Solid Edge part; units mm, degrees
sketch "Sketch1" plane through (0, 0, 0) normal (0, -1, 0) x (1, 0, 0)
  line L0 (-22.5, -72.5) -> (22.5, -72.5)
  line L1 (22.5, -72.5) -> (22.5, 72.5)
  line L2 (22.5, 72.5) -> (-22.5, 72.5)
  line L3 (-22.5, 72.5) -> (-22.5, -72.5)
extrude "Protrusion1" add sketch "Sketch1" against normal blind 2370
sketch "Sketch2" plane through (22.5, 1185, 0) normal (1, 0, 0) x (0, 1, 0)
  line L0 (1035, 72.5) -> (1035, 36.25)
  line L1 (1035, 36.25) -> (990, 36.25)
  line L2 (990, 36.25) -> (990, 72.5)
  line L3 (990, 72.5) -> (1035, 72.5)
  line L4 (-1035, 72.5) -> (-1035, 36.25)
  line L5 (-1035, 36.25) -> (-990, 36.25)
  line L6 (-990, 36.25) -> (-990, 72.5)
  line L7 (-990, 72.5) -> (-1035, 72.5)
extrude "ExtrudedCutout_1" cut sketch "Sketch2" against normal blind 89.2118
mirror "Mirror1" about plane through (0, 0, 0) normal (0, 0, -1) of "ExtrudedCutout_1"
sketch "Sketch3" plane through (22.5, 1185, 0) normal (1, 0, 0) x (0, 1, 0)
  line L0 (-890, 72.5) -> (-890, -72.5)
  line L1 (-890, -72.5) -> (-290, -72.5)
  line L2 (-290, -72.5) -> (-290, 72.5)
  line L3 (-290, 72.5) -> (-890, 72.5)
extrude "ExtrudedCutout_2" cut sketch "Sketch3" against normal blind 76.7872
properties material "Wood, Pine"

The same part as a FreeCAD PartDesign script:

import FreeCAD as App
import Part
import Sketcher

V = App.Vector
Q = App.Units.Quantity

doc = App.newDocument("Part")
body = doc.addObject("PartDesign::Body", "Body")
body.AllowCompound = True

sketch1 = body.newObject("Sketcher::SketchObject", "Sketch")
sketch1.AttachmentSupport = (doc.getObject("XZ_Plane"), [""])
sketch1.MapMode = "FlatFace"
sketch1.addGeometry([
    Part.LineSegment(V(-22.5, 72.5, 0), V(-22.5, -72.5, 0)),
    Part.LineSegment(V(-22.5, -72.5, 0), V(22.5, -72.5, 0)),
    Part.LineSegment(V(22.5, -72.5, 0), V(22.5, 72.5, 0)),
    Part.LineSegment(V(22.5, 72.5, 0), V(-22.5, 72.5, 0)),
], False)
sketch1.addConstraint([
    Sketcher.Constraint("Coincident", 0, 2, 1, 1),
    Sketcher.Constraint("Coincident", 1, 2, 2, 1),
    Sketcher.Constraint("Coincident", 2, 2, 3, 1),
    Sketcher.Constraint("Coincident", 3, 2, 0, 1),
    Sketcher.Constraint("Vertical", 0),
    Sketcher.Constraint("Horizontal", 1),
    Sketcher.Constraint("Vertical", 2),
    Sketcher.Constraint("Horizontal", 3),
    Sketcher.Constraint("Symmetric", 0, 2, 2, 2, -1, 1),
    Sketcher.Constraint("DistanceX", 1, 1, 1, 2, Q("45 mm")),
    Sketcher.Constraint("DistanceY", 0, 2, 0, 1, Q("145 mm")),
])
pad1 = body.newObject("PartDesign::Pad", "Pad")
pad1.Profile = sketch1
pad1.Length = 2370
pad1.Reversed = True

sketch2 = body.newObject("Sketcher::SketchObject", "Sketch001")
sketch2.AttachmentSupport = (doc.getObject("YZ_Plane"), [""])
sketch2.MapMode = "FlatFace"
sketch2.AttachmentOffset = App.Placement(V(0, 0, 22.5), App.Rotation())
sketch2.addGeometry([
    Part.LineSegment(V(2220, 36.25, 0), V(2220, 72.5, 0)),
    Part.LineSegment(V(2220, 72.5, 0), V(2175, 72.5, 0)),
    Part.LineSegment(V(2175, 72.5, 0), V(2175, 36.25, 0)),
    Part.LineSegment(V(2175, 36.25, 0), V(2220, 36.25, 0)),
    Part.LineSegment(V(195, 72.5, 0), V(150, 72.5, 0)),
    Part.LineSegment(V(150, 72.5, 0), V(150, 36.25, 0)),
    Part.LineSegment(V(150, 36.25, 0), V(195, 36.25, 0)),
    Part.LineSegment(V(195, 36.25, 0), V(195, 72.5, 0)),
], False)
sketch2.addConstraint([
    Sketcher.Constraint("Coincident", 0, 2, 1, 1),
    Sketcher.Constraint("Coincident", 1, 2, 2, 1),
    Sketcher.Constraint("Coincident", 2, 2, 3, 1),
    Sketcher.Constraint("Coincident", 3, 2, 0, 1),
    Sketcher.Constraint("Coincident", 4, 2, 5, 1),
    Sketcher.Constraint("Coincident", 5, 2, 6, 1),
    Sketcher.Constraint("Coincident", 6, 2, 7, 1),
    Sketcher.Constraint("Coincident", 7, 2, 4, 1),
    Sketcher.Constraint("Vertical", 0),
    Sketcher.Constraint("Horizontal", 1),
    Sketcher.Constraint("Vertical", 2),
    Sketcher.Constraint("Horizontal", 3),
    Sketcher.Constraint("Horizontal", 4),
    Sketcher.Constraint("Vertical", 5),
    Sketcher.Constraint("Horizontal", 6),
    Sketcher.Constraint("Vertical", 7),
    Sketcher.Constraint("Horizontal", 1, 2, 4, 2),
    Sketcher.Constraint("Horizontal", 3, 2, 5, 2),
    Sketcher.Constraint("Equal", 3, 4),
    Sketcher.Constraint("DistanceX", 1, 2, 1, 1, Q("45 mm")),
    Sketcher.Constraint("DistanceX", -1, 1, 0, 2, Q("2220 mm")),
    Sketcher.Constraint("DistanceX", -1, 1, 4, 2, Q("150 mm")),
    Sketcher.Constraint("DistanceY", 0, 1, 0, 2, Q("36.25 mm")),
    Sketcher.Constraint("DistanceY", -1, 1, 0, 2, Q("72.5 mm")),
])
pocket1 = body.newObject("PartDesign::Pocket", "Pocket")
pocket1.Profile = sketch2
pocket1.Length = 89.2118
doc.recompute()

mirrored = body.newObject("PartDesign::Mirrored", "Mirrored")
mirrored.Originals = [pocket1]
mirrored.MirrorPlane = (doc.getObject("XY_Plane"), [""])
body.Tip = mirrored

sketch3 = body.newObject("Sketcher::SketchObject", "Sketch002")
sketch3.AttachmentSupport = (doc.getObject("YZ_Plane"), [""])
sketch3.MapMode = "FlatFace"
sketch3.AttachmentOffset = App.Placement(V(0, 0, 22.5), App.Rotation())
sketch3.addGeometry([
    Part.LineSegment(V(895, 72.5, 0), V(295, 72.5, 0)),
    Part.LineSegment(V(295, 72.5, 0), V(295, -72.5, 0)),
    Part.LineSegment(V(295, -72.5, 0), V(895, -72.5, 0)),
    Part.LineSegment(V(895, -72.5, 0), V(895, 72.5, 0)),
], False)
sketch3.addConstraint([
    Sketcher.Constraint("Coincident", 0, 2, 1, 1),
    Sketcher.Constraint("Coincident", 1, 2, 2, 1),
    Sketcher.Constraint("Coincident", 2, 2, 3, 1),
    Sketcher.Constraint("Coincident", 3, 2, 0, 1),
    Sketcher.Constraint("Horizontal", 0),
    Sketcher.Constraint("Vertical", 1),
    Sketcher.Constraint("Horizontal", 2),
    Sketcher.Constraint("Vertical", 3),
    Sketcher.Constraint("DistanceX", 0, 2, 0, 1, Q("600 mm")),
    Sketcher.Constraint("DistanceY", 1, 2, 1, 1, Q("145 mm")),
    Sketcher.Constraint("DistanceX", -1, 1, 0, 2, Q("295 mm")),
    Sketcher.Constraint("DistanceY", -1, 1, 0, 2, Q("72.5 mm")),
])
pocket2 = body.newObject("PartDesign::Pocket", "Pocket001")
pocket2.Profile = sketch3
pocket2.Length = 76.7872

doc.recompute()
